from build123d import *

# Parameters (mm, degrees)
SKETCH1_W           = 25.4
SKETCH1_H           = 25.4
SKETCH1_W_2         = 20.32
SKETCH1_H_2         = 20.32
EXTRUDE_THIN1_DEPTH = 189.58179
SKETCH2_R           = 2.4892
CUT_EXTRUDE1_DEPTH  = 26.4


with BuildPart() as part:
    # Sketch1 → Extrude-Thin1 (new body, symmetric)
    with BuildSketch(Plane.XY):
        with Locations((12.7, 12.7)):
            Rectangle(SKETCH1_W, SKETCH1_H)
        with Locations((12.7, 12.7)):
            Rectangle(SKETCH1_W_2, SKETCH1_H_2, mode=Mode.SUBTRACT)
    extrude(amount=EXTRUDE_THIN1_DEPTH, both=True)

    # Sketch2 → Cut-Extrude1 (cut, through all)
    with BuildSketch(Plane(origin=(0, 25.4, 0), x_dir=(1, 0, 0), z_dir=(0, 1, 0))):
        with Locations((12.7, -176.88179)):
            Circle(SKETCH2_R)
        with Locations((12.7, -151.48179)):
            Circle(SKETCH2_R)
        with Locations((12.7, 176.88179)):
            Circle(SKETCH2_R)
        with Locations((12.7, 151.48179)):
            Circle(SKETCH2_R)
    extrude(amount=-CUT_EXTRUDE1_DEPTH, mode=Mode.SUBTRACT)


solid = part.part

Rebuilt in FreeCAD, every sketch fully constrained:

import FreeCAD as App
import Part
import Sketcher

V = App.Vector
Q = App.Units.Quantity

doc = App.newDocument("Part")
body = doc.addObject("PartDesign::Body", "Body")

# Sketch on XY plane
sketch1 = body.newObject("Sketcher::SketchObject", "Sketch")
sketch1.AttachmentSupport = (doc.getObject("XY_Plane"), [""])
sketch1.MapMode = "FlatFace"
sketch1.addGeometry([
    Part.LineSegment(V(0, 25, 0), V(0, 0, 0)),  # 0
    Part.LineSegment(V(0, 0, 0), V(25, 0, 0)),  # 1
    Part.LineSegment(V(25, 0, 0), V(25, 25, 0)),  # 2
    Part.LineSegment(V(25, 25, 0), V(0, 25, 0)),  # 3
    Part.LineSegment(V(23, 3, 0), V(3, 3, 0)),  # 4
    Part.LineSegment(V(3, 3, 0), V(3, 23, 0)),  # 5
    Part.LineSegment(V(3, 23, 0), V(23, 23, 0)),  # 6
    Part.LineSegment(V(23, 23, 0), V(23, 3, 0)),  # 7
], False)
sketch1.addConstraint([
    Sketcher.Constraint("Coincident", 0, 2, 1, 1),
    Sketcher.Constraint("Coincident", 1, 2, 2, 1),
    Sketcher.Constraint("Coincident", 2, 2, 3, 1),
    Sketcher.Constraint("Coincident", 3, 2, 0, 1),
    Sketcher.Constraint("Coincident", 4, 2, 5, 1),
    Sketcher.Constraint("Coincident", 5, 2, 6, 1),
    Sketcher.Constraint("Coincident", 6, 2, 7, 1),
    Sketcher.Constraint("Coincident", 7, 2, 4, 1),
    Sketcher.Constraint("Vertical", 0),
    Sketcher.Constraint("Horizontal", 1),
    Sketcher.Constraint("Vertical", 2),
    Sketcher.Constraint("Horizontal", 3),
    Sketcher.Constraint("Horizontal", 4),
    Sketcher.Constraint("Vertical", 5),
    Sketcher.Constraint("Horizontal", 6),
    Sketcher.Constraint("Vertical", 7),
    Sketcher.Constraint("Coincident", 0, 2, -1, 1),
    Sketcher.Constraint("Equal", 3, 0),
    Sketcher.Constraint("Equal", 6, 5),
    Sketcher.Constraint("DistanceX", 1, 1, 1, 2, Q("1 in")),
    Sketcher.Constraint("DistanceX", 4, 2, 4, 1, Q("0.8 in")),
    Sketcher.Constraint("DistanceX", -1, 1, 4, 2, Q("0.1 in")),
    Sketcher.Constraint("DistanceY", -1, 1, 4, 2, Q("0.1 in")),
])
pad1 = body.newObject("PartDesign::Pad", "Pad")
pad1.Profile = sketch1
pad1.Length = Q("14.9277 in")
pad1.Midplane = True

# Sketch on XZ plane
sketch2 = body.newObject("Sketcher::SketchObject", "Sketch001")
sketch2.AttachmentSupport = (doc.getObject("XZ_Plane"), [""])
sketch2.MapMode = "FlatFace"
sketch2.AttachmentOffset = App.Placement(V(0, 0, -1 * 25.4), App.Rotation())
sketch2.addGeometry([
    Part.Circle(V(12.7, 176.9, 0), V(0, 0, 1), 2.5),
    Part.Circle(V(12.7, 151.5, 0), V(0, 0, 1), 2.5),
    Part.Circle(V(12.7, -176.9, 0), V(0, 0, 1), 2.5),
    Part.Circle(V(12.7, -151.5, 0), V(0, 0, 1), 2.5),
], False)
sketch2.addConstraint([
    Sketcher.Constraint("Equal", 0, 1),
    Sketcher.Constraint("Equal", 1, 2),
    Sketcher.Constraint("Equal", 2, 3),
    Sketcher.Constraint("Symmetric", 0, 3, 2, 3, -1),
    Sketcher.Constraint("Symmetric", 1, 3, 3, 3, -1),
    Sketcher.Constraint("Vertical", 0, 3, 1, 3),
    Sketcher.Constraint("Diameter", 0, Q("0.196 in")),
    Sketcher.Constraint("DistanceY", 1, 3, 0, 3, Q("1 in")),
    Sketcher.Constraint("DistanceX", -1, 1, 0, 3, Q("0.5 in")),
    Sketcher.Constraint("DistanceY", 2, 3, 1, 3, Q("12.9277 in")),
])
pocket1 = body.newObject("PartDesign::Pocket", "Pocket")
pocket1.Profile = sketch2
pocket1.Type = "ThroughAll"
pocket1.Reversed = True

doc.recompute()
